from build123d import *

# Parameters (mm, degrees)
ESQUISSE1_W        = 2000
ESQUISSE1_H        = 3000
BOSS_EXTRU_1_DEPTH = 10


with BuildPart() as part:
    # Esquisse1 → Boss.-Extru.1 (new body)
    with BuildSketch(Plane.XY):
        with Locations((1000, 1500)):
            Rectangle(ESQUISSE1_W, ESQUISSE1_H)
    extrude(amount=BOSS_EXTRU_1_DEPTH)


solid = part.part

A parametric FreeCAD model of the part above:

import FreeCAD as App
import Part
import Sketcher

V = App.Vector
Q = App.Units.Quantity


def add_polygon(sketch, points):
    """Adds a closed chain of lines whose ends are joined by coincident constraints."""
    first, n = sketch.GeometryCount, len(points)
    for a, b in zip(points, points[1:] + points[:1]):
        sketch.addGeometry(Part.LineSegment(App.Vector(*a, 0), App.Vector(*b, 0)), False)
    for i in range(n):
        sketch.addConstraint(Sketcher.Constraint("Coincident", first + i, 2, first + (i + 1) % n, 1))

doc = App.newDocument("Part")
body = doc.addObject("PartDesign::Body", "Body")

sketch1 = doc.addObject("Sketcher::SketchObject", "Sketch")
body.addObject(sketch1)
sketch1.AttachmentSupport = (doc.XY_Plane, [""])
sketch1.MapMode = "FlatFace"
add_polygon(sketch1, [(0, 3000), (0, 0), (2000, 0), (2000, 3000)])
sketch1.addConstraint(Sketcher.Constraint("Vertical", 0))
sketch1.addConstraint(Sketcher.Constraint("Horizontal", 1))
sketch1.addConstraint(Sketcher.Constraint("Vertical", 2))
sketch1.addConstraint(Sketcher.Constraint("Horizontal", 3))
sketch1.addConstraint(Sketcher.Constraint("Coincident", 0, 2, -1, 1))
sketch1.addConstraint(Sketcher.Constraint("DistanceX", 1, 1, 1, 2, Q("2000 mm")))
sketch1.addConstraint(Sketcher.Constraint("DistanceY", 0, 2, 0, 1, Q("3000 mm")))
pad1 = doc.addObject("PartDesign::Pad", "Pad")
body.addObject(pad1)
pad1.Profile = sketch1
pad1.Length = 10

doc.recompute()
